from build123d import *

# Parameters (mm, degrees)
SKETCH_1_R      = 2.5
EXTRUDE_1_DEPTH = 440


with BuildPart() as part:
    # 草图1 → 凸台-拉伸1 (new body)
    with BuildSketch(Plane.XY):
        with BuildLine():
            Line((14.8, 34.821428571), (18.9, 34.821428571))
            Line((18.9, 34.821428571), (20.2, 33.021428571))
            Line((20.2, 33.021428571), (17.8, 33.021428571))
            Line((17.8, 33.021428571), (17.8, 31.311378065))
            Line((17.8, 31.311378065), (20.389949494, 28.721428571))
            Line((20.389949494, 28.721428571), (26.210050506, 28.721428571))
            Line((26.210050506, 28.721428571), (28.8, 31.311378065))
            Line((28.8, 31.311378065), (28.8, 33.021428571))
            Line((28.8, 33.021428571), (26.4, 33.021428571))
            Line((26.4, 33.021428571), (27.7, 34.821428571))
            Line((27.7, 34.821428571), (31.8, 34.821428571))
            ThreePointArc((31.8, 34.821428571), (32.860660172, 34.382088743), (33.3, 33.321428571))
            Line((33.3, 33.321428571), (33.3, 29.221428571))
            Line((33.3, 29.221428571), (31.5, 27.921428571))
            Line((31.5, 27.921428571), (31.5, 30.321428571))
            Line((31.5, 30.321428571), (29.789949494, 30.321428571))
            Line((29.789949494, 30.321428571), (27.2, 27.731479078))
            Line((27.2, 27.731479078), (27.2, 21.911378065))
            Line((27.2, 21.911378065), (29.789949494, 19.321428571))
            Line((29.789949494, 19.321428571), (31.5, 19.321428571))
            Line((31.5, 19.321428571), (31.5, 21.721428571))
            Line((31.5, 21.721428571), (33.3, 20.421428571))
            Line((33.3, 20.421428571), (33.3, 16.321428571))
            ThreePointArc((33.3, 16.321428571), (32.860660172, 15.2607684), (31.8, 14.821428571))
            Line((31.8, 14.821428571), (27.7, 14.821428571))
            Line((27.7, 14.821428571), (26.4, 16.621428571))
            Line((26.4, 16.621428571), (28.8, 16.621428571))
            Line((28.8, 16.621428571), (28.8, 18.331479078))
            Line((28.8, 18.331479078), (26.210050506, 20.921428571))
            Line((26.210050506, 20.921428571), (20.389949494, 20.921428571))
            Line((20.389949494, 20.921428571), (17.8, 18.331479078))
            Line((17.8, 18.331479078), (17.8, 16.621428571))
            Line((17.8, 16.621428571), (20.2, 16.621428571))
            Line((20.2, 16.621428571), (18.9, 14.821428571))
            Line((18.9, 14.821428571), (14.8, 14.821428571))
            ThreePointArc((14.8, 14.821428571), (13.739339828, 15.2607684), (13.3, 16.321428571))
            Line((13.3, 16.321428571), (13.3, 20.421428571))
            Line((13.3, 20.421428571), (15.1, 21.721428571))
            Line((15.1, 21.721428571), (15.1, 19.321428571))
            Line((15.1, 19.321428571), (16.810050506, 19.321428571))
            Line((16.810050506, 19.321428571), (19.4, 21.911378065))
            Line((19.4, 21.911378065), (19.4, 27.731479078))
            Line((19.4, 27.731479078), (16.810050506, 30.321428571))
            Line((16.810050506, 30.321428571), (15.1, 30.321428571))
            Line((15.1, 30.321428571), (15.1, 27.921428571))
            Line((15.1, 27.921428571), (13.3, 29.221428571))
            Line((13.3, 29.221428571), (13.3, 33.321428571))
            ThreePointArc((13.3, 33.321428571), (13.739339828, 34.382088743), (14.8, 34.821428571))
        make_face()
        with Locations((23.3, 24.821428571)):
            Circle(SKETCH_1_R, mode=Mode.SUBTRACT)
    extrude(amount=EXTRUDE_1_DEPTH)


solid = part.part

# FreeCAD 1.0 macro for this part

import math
import FreeCAD as App
import Part
import Sketcher

V = App.Vector

doc = App.newDocument("Part")
body = doc.addObject("PartDesign::Body", "Body")

# Sketch on XY plane
sketch1 = body.newObject("Sketcher::SketchObject", "Sketch")
sketch1.AttachmentSupport = (doc.getObject("XY_Plane"), [""])
sketch1.MapMode = "FlatFace"
sketch1.addGeometry([
    Part.LineSegment(V(18.9, 34.8, 0), V(14.8, 34.8, 0)),  # 0
    Part.ArcOfCircle(Part.Circle(V(14.8, 33.3, 0), V(0, 0, 1), 1.5), math.radians(90), math.radians(180)),  # 1
    Part.LineSegment(V(13.3, 33.3, 0), V(13.3, 29.2, 0)),  # 2
    Part.LineSegment(V(13.3, 29.2, 0), V(15.1, 27.9, 0)),  # 3
    Part.LineSegment(V(15.1, 27.9, 0), V(15.1, 30.3, 0)),  # 4
    Part.LineSegment(V(15.1, 30.3, 0), V(16.8, 30.3, 0)),  # 5
    Part.LineSegment(V(16.8, 30.3, 0), V(19.4, 27.7, 0)),  # 6
    Part.LineSegment(V(19.4, 27.7, 0), V(19.4, 21.9, 0)),  # 7
    Part.LineSegment(V(19.4, 21.9, 0), V(16.8, 19.3, 0)),  # 8
    Part.LineSegment(V(16.8, 19.3, 0), V(15.1, 19.3, 0)),  # 9
    Part.LineSegment(V(15.1, 19.3, 0), V(15.1, 21.7, 0)),  # 10
    Part.LineSegment(V(15.1, 21.7, 0), V(13.3, 20.4, 0)),  # 11
    Part.LineSegment(V(13.3, 20.4, 0), V(13.3, 16.3, 0)),  # 12
    Part.ArcOfCircle(Part.Circle(V(14.8, 16.3, 0), V(0, 0, 1), 1.5), math.radians(-180), math.radians(-90)),  # 13
    Part.LineSegment(V(14.8, 14.8, 0), V(18.9, 14.8, 0)),  # 14
    Part.LineSegment(V(18.9, 14.8, 0), V(20.2, 16.6, 0)),  # 15
    Part.LineSegment(V(20.2, 16.6, 0), V(17.8, 16.6, 0)),  # 16
    Part.LineSegment(V(17.8, 16.6, 0), V(17.8, 18.3, 0)),  # 17
    Part.LineSegment(V(17.8, 18.3, 0), V(20.4, 20.9, 0)),  # 18
    Part.LineSegment(V(20.4, 20.9, 0), V(26.2, 20.9, 0)),  # 19
    Part.LineSegment(V(26.2, 20.9, 0), V(28.8, 18.3, 0)),  # 20
    Part.LineSegment(V(28.8, 18.3, 0), V(28.8, 16.6, 0)),  # 21
    Part.LineSegment(V(28.8, 16.6, 0), V(26.4, 16.6, 0)),  # 22
    Part.LineSegment(V(26.4, 16.6, 0), V(27.7, 14.8, 0)),  # 23
    Part.LineSegment(V(27.7, 14.8, 0), V(31.8, 14.8, 0)),  # 24
    Part.ArcOfCircle(Part.Circle(V(31.8, 16.3, 0), V(0, 0, 1), 1.5), math.radians(-90), math.radians(0)),  # 25
    Part.LineSegment(V(33.3, 16.3, 0), V(33.3, 20.4, 0)),  # 26
    Part.LineSegment(V(33.3, 20.4, 0), V(31.5, 21.7, 0)),  # 27
    Part.LineSegment(V(31.5, 21.7, 0), V(31.5, 19.3, 0)),  # 28
    Part.LineSegment(V(31.5, 19.3, 0), V(29.8, 19.3, 0)),  # 29
    Part.LineSegment(V(29.8, 19.3, 0), V(27.2, 21.9, 0)),  # 30
    Part.LineSegment(V(27.2, 21.9, 0), V(27.2, 27.7, 0)),  # 31
    Part.LineSegment(V(27.2, 27.7, 0), V(29.8, 30.3, 0)),  # 32
    Part.LineSegment(V(29.8, 30.3, 0), V(31.5, 30.3, 0)),  # 33
    Part.LineSegment(V(31.5, 30.3, 0), V(31.5, 27.9, 0)),  # 34
    Part.LineSegment(V(31.5, 27.9, 0), V(33.3, 29.2, 0)),  # 35
    Part.LineSegment(V(33.3, 29.2, 0), V(33.3, 33.3, 0)),  # 36
    Part.ArcOfCircle(Part.Circle(V(31.8, 33.3, 0), V(0, 0, 1), 1.5), math.radians(0), math.radians(90)),  # 37
    Part.LineSegment(V(31.8, 34.8, 0), V(27.7, 34.8, 0)),  # 38
    Part.LineSegment(V(27.7, 34.8, 0), V(26.4, 33, 0)),  # 39
    Part.LineSegment(V(26.4, 33, 0), V(28.8, 33, 0)),  # 40
    Part.LineSegment(V(28.8, 33, 0), V(28.8, 31.3, 0)),  # 41
    Part.LineSegment(V(28.8, 31.3, 0), V(26.2, 28.7, 0)),  # 42
    Part.LineSegment(V(26.2, 28.7, 0), V(20.4, 28.7, 0)),  # 43
    Part.LineSegment(V(20.4, 28.7, 0), V(17.8, 31.3, 0)),  # 44
    Part.LineSegment(V(17.8, 31.3, 0), V(17.8, 33, 0)),  # 45
    Part.LineSegment(V(17.8, 33, 0), V(20.2, 33, 0)),  # 46
    Part.LineSegment(V(20.2, 33, 0), V(18.9, 34.8, 0)),  # 47
    Part.Circle(V(23.3, 24.8, 0), V(0, 0, 1), 2.5),  # 48
], False)
sketch1.addConstraint([
    Sketcher.Constraint("Tangent", 0, 2, 1, 1),
    Sketcher.Constraint("Tangent", 1, 2, 2, 1),
    Sketcher.Constraint("Coincident", 2, 2, 3, 1),
    Sketcher.Constraint("Coincident", 3, 2, 4, 1),
    Sketcher.Constraint("Coincident", 4, 2, 5, 1),
    Sketcher.Constraint("Coincident", 5, 2, 6, 1),
    Sketcher.Constraint("Coincident", 6, 2, 7, 1),
    Sketcher.Constraint("Coincident", 7, 2, 8, 1),
    Sketcher.Constraint("Coincident", 8, 2, 9, 1),
    Sketcher.Constraint("Coincident", 9, 2, 10, 1),
    Sketcher.Constraint("Coincident", 10, 2, 11, 1),
    Sketcher.Constraint("Coincident", 11, 2, 12, 1),
    Sketcher.Constraint("Tangent", 12, 2, 13, 1),
    Sketcher.Constraint("Tangent", 13, 2, 14, 1),
    Sketcher.Constraint("Coincident", 14, 2, 15, 1),
    Sketcher.Constraint("Coincident", 15, 2, 16, 1),
    Sketcher.Constraint("Coincident", 16, 2, 17, 1),
    Sketcher.Constraint("Coincident", 17, 2, 18, 1),
    Sketcher.Constraint("Coincident", 18, 2, 19, 1),
    Sketcher.Constraint("Coincident", 19, 2, 20, 1),
    Sketcher.Constraint("Coincident", 20, 2, 21, 1),
    Sketcher.Constraint("Coincident", 21, 2, 22, 1),
    Sketcher.Constraint("Coincident", 22, 2, 23, 1),
    Sketcher.Constraint("Coincident", 23, 2, 24, 1),
    Sketcher.Constraint("Tangent", 24, 2, 25, 1),
    Sketcher.Constraint("Tangent", 25, 2, 26, 1),
    Sketcher.Constraint("Coincident", 26, 2, 27, 1),
    Sketcher.Constraint("Coincident", 27, 2, 28, 1),
    Sketcher.Constraint("Coincident", 28, 2, 29, 1),
    Sketcher.Constraint("Coincident", 29, 2, 30, 1),
    Sketcher.Constraint("Coincident", 30, 2, 31, 1),
    Sketcher.Constraint("Coincident", 31, 2, 32, 1),
    Sketcher.Constraint("Coincident", 32, 2, 33, 1),
    Sketcher.Constraint("Coincident", 33, 2, 34, 1),
    Sketcher.Constraint("Coincident", 34, 2, 35, 1),
    Sketcher.Constraint("Coincident", 35, 2, 36, 1),
    Sketcher.Constraint("Tangent", 36, 2, 37, 1),
    Sketcher.Constraint("Tangent", 37, 2, 38, 1),
    Sketcher.Constraint("Coincident", 38, 2, 39, 1),
    Sketcher.Constraint("Coincident", 39, 2, 40, 1),
    Sketcher.Constraint("Coincident", 40, 2, 41, 1),
    Sketcher.Constraint("Coincident", 41, 2, 42, 1),
    Sketcher.Constraint("Coincident", 42, 2, 43, 1),
    Sketcher.Constraint("Coincident", 43, 2, 44, 1),
    Sketcher.Constraint("Coincident", 44, 2, 45, 1),
    Sketcher.Constraint("Coincident", 45, 2, 46, 1),
    Sketcher.Constraint("Coincident", 46, 2, 47, 1),
    Sketcher.Constraint("Coincident", 47, 2, 0, 1),
    Sketcher.Constraint("Horizontal", 0),
    Sketcher.Constraint("Vertical", 2),
    Sketcher.Constraint("Vertical", 4),
    Sketcher.Constraint("Horizontal", 5),
    Sketcher.Constraint("Vertical", 7),
    Sketcher.Constraint("Horizontal", 9),
    Sketcher.Constraint("Vertical", 10),
    Sketcher.Constraint("Vertical", 12),
    Sketcher.Constraint("Horizontal", 14),
    Sketcher.Constraint("Horizontal", 16),
    Sketcher.Constraint("Vertical", 17),
    Sketcher.Constraint("Horizontal", 19),
    Sketcher.Constraint("Vertical", 21),
    Sketcher.Constraint("Horizontal", 22),
    Sketcher.Constraint("Horizontal", 24),
    Sketcher.Constraint("Vertical", 26),
    Sketcher.Constraint("Vertical", 28),
    Sketcher.Constraint("Horizontal", 29),
    Sketcher.Constraint("Vertical", 31),
    Sketcher.Constraint("Horizontal", 33),
    Sketcher.Constraint("Vertical", 34),
    Sketcher.Constraint("Vertical", 36),
    Sketcher.Constraint("Horizontal", 38),
    Sketcher.Constraint("Horizontal", 40),
    Sketcher.Constraint("Vertical", 41),
    Sketcher.Constraint("Horizontal", 43),
    Sketcher.Constraint("Vertical", 45),
    Sketcher.Constraint("Horizontal", 46),
    Sketcher.Constraint("Equal", 1, 13),
    Sketcher.Constraint("Equal", 13, 25),
    Sketcher.Constraint("Equal", 25, 37),
    Sketcher.Constraint("Perpendicular", 6, 8),
    Sketcher.Constraint("Perpendicular", 3, 15),
    Sketcher.Constraint("Parallel", 8, 18),
    Sketcher.Constraint("Perpendicular", 18, 20),
    Sketcher.Constraint("Perpendicular", 11, 23),
    Sketcher.Constraint("Perpendicular", 15, 27),
    Sketcher.Constraint("Parallel", 20, 30),
    Sketcher.Constraint("Perpendicular", 30, 32),
    Sketcher.Constraint("Perpendicular", 23, 35),
    Sketcher.Constraint("Perpendicular", 27, 39),
    Sketcher.Constraint("Parallel", 32, 42),
    Sketcher.Constraint("Perpendicular", 42, 44),
    Sketcher.Constraint("Perpendicular", 35, 47),
    Sketcher.Constraint("Horizontal", 13, 3, 25, 3),
    Sketcher.Constraint("Horizontal", 1, 3, 37, 3),
    Sketcher.Constraint("Horizontal", 17, 2, 20, 2),
    Sketcher.Constraint("Horizontal", 16, 2, 21, 2),
    Sketcher.Constraint("Horizontal", 11, 2, 26, 2),
    Sketcher.Constraint("Horizontal", 10, 2, 27, 2),
    Sketcher.Constraint("Horizontal", 9, 2, 28, 2),
    Sketcher.Constraint("Horizontal", 7, 2, 30, 2),
    Sketcher.Constraint("Horizontal", 6, 2, 31, 2),
    Sketcher.Constraint("Horizontal", 5, 2, 32, 2),
    Sketcher.Constraint("Horizontal", 3, 2, 34, 2),
    Sketcher.Constraint("Horizontal", 2, 2, 35, 2),
    Sketcher.Constraint("Horizontal", 41, 2, 44, 2),
    Sketcher.Constraint("Horizontal", 40, 2, 45, 2),
    Sketcher.Constraint("Vertical", 1, 3, 13, 3),
    Sketcher.Constraint("Vertical", 25, 3, 37, 3),
    Sketcher.Constraint("Vertical", 5, 2, 8, 2),
    Sketcher.Constraint("Vertical", 4, 2, 9, 2),
    Sketcher.Constraint("Vertical", 29, 2, 32, 2),
    Sketcher.Constraint("Vertical", 28, 2, 33, 2),
    Sketcher.Constraint("Vertical", 23, 2, 38, 2),
    Sketcher.Constraint("Vertical", 22, 2, 39, 2),
    Sketcher.Constraint("Vertical", 21, 2, 40, 2),
    Sketcher.Constraint("Vertical", 19, 2, 42, 2),
    Sketcher.Constraint("Vertical", 18, 2, 43, 2),
    Sketcher.Constraint("Vertical", 15, 2, 46, 2),
    Sketcher.Constraint("Equal", 16, 22),
    Sketcher.Constraint("Equal", 14, 24),
    Sketcher.Constraint("Equal", 9, 29),
    Sketcher.Constraint("Equal", 38, 2),
    Sketcher.Constraint("Equal", 46, 4),
    Sketcher.Constraint("Equal", 43, 7),
    Sketcher.Constraint("Equal", 4, 10),
    Sketcher.Constraint("Equal", 2, 12),
    Sketcher.Constraint("Equal", 33, 17),
    Sketcher.Constraint("Equal", 21, 41),
    Sketcher.Constraint("Equal", 11, 15),
    Sketcher.Constraint("Equal", 8, 18),
    Sketcher.Constraint("Diameter", 48, 5.0),
    Sketcher.Constraint("Radius", 1, 1.5),
    Sketcher.Constraint("DistanceX", 0, 2, 0, 1, 4.1),
    Sketcher.Constraint("DistanceX", 16, 2, 16, 1, 2.4),
    Sketcher.Constraint("DistanceY", 13, 3, 1, 3, 17.0),
    Sketcher.Constraint("DistanceY", 48, 3, 0, 2, 10.0),
    Sketcher.Constraint("DistanceX", 1, 2, 48, 3, 10.0),
    Sketcher.Constraint("DistanceY", 4, 2, 1, 3, 3.0),
    Sketcher.Constraint("DistanceX", -1, 1, 1, 3, 14.8),
    Sketcher.Constraint("DistanceX", -1, 1, 3, 2, 15.1),
    Sketcher.Constraint("DistanceX", -1, 1, 6, 2, 19.4),
    Sketcher.Constraint("DistanceX", 19, 1, 19, 2, 5.820101),
    Sketcher.Constraint("DistanceY", -1, 1, 1, 3, 33.321429),
])
pad1 = body.newObject("PartDesign::Pad", "Pad")
pad1.Profile = sketch1
pad1.Length = 440

doc.recompute()
